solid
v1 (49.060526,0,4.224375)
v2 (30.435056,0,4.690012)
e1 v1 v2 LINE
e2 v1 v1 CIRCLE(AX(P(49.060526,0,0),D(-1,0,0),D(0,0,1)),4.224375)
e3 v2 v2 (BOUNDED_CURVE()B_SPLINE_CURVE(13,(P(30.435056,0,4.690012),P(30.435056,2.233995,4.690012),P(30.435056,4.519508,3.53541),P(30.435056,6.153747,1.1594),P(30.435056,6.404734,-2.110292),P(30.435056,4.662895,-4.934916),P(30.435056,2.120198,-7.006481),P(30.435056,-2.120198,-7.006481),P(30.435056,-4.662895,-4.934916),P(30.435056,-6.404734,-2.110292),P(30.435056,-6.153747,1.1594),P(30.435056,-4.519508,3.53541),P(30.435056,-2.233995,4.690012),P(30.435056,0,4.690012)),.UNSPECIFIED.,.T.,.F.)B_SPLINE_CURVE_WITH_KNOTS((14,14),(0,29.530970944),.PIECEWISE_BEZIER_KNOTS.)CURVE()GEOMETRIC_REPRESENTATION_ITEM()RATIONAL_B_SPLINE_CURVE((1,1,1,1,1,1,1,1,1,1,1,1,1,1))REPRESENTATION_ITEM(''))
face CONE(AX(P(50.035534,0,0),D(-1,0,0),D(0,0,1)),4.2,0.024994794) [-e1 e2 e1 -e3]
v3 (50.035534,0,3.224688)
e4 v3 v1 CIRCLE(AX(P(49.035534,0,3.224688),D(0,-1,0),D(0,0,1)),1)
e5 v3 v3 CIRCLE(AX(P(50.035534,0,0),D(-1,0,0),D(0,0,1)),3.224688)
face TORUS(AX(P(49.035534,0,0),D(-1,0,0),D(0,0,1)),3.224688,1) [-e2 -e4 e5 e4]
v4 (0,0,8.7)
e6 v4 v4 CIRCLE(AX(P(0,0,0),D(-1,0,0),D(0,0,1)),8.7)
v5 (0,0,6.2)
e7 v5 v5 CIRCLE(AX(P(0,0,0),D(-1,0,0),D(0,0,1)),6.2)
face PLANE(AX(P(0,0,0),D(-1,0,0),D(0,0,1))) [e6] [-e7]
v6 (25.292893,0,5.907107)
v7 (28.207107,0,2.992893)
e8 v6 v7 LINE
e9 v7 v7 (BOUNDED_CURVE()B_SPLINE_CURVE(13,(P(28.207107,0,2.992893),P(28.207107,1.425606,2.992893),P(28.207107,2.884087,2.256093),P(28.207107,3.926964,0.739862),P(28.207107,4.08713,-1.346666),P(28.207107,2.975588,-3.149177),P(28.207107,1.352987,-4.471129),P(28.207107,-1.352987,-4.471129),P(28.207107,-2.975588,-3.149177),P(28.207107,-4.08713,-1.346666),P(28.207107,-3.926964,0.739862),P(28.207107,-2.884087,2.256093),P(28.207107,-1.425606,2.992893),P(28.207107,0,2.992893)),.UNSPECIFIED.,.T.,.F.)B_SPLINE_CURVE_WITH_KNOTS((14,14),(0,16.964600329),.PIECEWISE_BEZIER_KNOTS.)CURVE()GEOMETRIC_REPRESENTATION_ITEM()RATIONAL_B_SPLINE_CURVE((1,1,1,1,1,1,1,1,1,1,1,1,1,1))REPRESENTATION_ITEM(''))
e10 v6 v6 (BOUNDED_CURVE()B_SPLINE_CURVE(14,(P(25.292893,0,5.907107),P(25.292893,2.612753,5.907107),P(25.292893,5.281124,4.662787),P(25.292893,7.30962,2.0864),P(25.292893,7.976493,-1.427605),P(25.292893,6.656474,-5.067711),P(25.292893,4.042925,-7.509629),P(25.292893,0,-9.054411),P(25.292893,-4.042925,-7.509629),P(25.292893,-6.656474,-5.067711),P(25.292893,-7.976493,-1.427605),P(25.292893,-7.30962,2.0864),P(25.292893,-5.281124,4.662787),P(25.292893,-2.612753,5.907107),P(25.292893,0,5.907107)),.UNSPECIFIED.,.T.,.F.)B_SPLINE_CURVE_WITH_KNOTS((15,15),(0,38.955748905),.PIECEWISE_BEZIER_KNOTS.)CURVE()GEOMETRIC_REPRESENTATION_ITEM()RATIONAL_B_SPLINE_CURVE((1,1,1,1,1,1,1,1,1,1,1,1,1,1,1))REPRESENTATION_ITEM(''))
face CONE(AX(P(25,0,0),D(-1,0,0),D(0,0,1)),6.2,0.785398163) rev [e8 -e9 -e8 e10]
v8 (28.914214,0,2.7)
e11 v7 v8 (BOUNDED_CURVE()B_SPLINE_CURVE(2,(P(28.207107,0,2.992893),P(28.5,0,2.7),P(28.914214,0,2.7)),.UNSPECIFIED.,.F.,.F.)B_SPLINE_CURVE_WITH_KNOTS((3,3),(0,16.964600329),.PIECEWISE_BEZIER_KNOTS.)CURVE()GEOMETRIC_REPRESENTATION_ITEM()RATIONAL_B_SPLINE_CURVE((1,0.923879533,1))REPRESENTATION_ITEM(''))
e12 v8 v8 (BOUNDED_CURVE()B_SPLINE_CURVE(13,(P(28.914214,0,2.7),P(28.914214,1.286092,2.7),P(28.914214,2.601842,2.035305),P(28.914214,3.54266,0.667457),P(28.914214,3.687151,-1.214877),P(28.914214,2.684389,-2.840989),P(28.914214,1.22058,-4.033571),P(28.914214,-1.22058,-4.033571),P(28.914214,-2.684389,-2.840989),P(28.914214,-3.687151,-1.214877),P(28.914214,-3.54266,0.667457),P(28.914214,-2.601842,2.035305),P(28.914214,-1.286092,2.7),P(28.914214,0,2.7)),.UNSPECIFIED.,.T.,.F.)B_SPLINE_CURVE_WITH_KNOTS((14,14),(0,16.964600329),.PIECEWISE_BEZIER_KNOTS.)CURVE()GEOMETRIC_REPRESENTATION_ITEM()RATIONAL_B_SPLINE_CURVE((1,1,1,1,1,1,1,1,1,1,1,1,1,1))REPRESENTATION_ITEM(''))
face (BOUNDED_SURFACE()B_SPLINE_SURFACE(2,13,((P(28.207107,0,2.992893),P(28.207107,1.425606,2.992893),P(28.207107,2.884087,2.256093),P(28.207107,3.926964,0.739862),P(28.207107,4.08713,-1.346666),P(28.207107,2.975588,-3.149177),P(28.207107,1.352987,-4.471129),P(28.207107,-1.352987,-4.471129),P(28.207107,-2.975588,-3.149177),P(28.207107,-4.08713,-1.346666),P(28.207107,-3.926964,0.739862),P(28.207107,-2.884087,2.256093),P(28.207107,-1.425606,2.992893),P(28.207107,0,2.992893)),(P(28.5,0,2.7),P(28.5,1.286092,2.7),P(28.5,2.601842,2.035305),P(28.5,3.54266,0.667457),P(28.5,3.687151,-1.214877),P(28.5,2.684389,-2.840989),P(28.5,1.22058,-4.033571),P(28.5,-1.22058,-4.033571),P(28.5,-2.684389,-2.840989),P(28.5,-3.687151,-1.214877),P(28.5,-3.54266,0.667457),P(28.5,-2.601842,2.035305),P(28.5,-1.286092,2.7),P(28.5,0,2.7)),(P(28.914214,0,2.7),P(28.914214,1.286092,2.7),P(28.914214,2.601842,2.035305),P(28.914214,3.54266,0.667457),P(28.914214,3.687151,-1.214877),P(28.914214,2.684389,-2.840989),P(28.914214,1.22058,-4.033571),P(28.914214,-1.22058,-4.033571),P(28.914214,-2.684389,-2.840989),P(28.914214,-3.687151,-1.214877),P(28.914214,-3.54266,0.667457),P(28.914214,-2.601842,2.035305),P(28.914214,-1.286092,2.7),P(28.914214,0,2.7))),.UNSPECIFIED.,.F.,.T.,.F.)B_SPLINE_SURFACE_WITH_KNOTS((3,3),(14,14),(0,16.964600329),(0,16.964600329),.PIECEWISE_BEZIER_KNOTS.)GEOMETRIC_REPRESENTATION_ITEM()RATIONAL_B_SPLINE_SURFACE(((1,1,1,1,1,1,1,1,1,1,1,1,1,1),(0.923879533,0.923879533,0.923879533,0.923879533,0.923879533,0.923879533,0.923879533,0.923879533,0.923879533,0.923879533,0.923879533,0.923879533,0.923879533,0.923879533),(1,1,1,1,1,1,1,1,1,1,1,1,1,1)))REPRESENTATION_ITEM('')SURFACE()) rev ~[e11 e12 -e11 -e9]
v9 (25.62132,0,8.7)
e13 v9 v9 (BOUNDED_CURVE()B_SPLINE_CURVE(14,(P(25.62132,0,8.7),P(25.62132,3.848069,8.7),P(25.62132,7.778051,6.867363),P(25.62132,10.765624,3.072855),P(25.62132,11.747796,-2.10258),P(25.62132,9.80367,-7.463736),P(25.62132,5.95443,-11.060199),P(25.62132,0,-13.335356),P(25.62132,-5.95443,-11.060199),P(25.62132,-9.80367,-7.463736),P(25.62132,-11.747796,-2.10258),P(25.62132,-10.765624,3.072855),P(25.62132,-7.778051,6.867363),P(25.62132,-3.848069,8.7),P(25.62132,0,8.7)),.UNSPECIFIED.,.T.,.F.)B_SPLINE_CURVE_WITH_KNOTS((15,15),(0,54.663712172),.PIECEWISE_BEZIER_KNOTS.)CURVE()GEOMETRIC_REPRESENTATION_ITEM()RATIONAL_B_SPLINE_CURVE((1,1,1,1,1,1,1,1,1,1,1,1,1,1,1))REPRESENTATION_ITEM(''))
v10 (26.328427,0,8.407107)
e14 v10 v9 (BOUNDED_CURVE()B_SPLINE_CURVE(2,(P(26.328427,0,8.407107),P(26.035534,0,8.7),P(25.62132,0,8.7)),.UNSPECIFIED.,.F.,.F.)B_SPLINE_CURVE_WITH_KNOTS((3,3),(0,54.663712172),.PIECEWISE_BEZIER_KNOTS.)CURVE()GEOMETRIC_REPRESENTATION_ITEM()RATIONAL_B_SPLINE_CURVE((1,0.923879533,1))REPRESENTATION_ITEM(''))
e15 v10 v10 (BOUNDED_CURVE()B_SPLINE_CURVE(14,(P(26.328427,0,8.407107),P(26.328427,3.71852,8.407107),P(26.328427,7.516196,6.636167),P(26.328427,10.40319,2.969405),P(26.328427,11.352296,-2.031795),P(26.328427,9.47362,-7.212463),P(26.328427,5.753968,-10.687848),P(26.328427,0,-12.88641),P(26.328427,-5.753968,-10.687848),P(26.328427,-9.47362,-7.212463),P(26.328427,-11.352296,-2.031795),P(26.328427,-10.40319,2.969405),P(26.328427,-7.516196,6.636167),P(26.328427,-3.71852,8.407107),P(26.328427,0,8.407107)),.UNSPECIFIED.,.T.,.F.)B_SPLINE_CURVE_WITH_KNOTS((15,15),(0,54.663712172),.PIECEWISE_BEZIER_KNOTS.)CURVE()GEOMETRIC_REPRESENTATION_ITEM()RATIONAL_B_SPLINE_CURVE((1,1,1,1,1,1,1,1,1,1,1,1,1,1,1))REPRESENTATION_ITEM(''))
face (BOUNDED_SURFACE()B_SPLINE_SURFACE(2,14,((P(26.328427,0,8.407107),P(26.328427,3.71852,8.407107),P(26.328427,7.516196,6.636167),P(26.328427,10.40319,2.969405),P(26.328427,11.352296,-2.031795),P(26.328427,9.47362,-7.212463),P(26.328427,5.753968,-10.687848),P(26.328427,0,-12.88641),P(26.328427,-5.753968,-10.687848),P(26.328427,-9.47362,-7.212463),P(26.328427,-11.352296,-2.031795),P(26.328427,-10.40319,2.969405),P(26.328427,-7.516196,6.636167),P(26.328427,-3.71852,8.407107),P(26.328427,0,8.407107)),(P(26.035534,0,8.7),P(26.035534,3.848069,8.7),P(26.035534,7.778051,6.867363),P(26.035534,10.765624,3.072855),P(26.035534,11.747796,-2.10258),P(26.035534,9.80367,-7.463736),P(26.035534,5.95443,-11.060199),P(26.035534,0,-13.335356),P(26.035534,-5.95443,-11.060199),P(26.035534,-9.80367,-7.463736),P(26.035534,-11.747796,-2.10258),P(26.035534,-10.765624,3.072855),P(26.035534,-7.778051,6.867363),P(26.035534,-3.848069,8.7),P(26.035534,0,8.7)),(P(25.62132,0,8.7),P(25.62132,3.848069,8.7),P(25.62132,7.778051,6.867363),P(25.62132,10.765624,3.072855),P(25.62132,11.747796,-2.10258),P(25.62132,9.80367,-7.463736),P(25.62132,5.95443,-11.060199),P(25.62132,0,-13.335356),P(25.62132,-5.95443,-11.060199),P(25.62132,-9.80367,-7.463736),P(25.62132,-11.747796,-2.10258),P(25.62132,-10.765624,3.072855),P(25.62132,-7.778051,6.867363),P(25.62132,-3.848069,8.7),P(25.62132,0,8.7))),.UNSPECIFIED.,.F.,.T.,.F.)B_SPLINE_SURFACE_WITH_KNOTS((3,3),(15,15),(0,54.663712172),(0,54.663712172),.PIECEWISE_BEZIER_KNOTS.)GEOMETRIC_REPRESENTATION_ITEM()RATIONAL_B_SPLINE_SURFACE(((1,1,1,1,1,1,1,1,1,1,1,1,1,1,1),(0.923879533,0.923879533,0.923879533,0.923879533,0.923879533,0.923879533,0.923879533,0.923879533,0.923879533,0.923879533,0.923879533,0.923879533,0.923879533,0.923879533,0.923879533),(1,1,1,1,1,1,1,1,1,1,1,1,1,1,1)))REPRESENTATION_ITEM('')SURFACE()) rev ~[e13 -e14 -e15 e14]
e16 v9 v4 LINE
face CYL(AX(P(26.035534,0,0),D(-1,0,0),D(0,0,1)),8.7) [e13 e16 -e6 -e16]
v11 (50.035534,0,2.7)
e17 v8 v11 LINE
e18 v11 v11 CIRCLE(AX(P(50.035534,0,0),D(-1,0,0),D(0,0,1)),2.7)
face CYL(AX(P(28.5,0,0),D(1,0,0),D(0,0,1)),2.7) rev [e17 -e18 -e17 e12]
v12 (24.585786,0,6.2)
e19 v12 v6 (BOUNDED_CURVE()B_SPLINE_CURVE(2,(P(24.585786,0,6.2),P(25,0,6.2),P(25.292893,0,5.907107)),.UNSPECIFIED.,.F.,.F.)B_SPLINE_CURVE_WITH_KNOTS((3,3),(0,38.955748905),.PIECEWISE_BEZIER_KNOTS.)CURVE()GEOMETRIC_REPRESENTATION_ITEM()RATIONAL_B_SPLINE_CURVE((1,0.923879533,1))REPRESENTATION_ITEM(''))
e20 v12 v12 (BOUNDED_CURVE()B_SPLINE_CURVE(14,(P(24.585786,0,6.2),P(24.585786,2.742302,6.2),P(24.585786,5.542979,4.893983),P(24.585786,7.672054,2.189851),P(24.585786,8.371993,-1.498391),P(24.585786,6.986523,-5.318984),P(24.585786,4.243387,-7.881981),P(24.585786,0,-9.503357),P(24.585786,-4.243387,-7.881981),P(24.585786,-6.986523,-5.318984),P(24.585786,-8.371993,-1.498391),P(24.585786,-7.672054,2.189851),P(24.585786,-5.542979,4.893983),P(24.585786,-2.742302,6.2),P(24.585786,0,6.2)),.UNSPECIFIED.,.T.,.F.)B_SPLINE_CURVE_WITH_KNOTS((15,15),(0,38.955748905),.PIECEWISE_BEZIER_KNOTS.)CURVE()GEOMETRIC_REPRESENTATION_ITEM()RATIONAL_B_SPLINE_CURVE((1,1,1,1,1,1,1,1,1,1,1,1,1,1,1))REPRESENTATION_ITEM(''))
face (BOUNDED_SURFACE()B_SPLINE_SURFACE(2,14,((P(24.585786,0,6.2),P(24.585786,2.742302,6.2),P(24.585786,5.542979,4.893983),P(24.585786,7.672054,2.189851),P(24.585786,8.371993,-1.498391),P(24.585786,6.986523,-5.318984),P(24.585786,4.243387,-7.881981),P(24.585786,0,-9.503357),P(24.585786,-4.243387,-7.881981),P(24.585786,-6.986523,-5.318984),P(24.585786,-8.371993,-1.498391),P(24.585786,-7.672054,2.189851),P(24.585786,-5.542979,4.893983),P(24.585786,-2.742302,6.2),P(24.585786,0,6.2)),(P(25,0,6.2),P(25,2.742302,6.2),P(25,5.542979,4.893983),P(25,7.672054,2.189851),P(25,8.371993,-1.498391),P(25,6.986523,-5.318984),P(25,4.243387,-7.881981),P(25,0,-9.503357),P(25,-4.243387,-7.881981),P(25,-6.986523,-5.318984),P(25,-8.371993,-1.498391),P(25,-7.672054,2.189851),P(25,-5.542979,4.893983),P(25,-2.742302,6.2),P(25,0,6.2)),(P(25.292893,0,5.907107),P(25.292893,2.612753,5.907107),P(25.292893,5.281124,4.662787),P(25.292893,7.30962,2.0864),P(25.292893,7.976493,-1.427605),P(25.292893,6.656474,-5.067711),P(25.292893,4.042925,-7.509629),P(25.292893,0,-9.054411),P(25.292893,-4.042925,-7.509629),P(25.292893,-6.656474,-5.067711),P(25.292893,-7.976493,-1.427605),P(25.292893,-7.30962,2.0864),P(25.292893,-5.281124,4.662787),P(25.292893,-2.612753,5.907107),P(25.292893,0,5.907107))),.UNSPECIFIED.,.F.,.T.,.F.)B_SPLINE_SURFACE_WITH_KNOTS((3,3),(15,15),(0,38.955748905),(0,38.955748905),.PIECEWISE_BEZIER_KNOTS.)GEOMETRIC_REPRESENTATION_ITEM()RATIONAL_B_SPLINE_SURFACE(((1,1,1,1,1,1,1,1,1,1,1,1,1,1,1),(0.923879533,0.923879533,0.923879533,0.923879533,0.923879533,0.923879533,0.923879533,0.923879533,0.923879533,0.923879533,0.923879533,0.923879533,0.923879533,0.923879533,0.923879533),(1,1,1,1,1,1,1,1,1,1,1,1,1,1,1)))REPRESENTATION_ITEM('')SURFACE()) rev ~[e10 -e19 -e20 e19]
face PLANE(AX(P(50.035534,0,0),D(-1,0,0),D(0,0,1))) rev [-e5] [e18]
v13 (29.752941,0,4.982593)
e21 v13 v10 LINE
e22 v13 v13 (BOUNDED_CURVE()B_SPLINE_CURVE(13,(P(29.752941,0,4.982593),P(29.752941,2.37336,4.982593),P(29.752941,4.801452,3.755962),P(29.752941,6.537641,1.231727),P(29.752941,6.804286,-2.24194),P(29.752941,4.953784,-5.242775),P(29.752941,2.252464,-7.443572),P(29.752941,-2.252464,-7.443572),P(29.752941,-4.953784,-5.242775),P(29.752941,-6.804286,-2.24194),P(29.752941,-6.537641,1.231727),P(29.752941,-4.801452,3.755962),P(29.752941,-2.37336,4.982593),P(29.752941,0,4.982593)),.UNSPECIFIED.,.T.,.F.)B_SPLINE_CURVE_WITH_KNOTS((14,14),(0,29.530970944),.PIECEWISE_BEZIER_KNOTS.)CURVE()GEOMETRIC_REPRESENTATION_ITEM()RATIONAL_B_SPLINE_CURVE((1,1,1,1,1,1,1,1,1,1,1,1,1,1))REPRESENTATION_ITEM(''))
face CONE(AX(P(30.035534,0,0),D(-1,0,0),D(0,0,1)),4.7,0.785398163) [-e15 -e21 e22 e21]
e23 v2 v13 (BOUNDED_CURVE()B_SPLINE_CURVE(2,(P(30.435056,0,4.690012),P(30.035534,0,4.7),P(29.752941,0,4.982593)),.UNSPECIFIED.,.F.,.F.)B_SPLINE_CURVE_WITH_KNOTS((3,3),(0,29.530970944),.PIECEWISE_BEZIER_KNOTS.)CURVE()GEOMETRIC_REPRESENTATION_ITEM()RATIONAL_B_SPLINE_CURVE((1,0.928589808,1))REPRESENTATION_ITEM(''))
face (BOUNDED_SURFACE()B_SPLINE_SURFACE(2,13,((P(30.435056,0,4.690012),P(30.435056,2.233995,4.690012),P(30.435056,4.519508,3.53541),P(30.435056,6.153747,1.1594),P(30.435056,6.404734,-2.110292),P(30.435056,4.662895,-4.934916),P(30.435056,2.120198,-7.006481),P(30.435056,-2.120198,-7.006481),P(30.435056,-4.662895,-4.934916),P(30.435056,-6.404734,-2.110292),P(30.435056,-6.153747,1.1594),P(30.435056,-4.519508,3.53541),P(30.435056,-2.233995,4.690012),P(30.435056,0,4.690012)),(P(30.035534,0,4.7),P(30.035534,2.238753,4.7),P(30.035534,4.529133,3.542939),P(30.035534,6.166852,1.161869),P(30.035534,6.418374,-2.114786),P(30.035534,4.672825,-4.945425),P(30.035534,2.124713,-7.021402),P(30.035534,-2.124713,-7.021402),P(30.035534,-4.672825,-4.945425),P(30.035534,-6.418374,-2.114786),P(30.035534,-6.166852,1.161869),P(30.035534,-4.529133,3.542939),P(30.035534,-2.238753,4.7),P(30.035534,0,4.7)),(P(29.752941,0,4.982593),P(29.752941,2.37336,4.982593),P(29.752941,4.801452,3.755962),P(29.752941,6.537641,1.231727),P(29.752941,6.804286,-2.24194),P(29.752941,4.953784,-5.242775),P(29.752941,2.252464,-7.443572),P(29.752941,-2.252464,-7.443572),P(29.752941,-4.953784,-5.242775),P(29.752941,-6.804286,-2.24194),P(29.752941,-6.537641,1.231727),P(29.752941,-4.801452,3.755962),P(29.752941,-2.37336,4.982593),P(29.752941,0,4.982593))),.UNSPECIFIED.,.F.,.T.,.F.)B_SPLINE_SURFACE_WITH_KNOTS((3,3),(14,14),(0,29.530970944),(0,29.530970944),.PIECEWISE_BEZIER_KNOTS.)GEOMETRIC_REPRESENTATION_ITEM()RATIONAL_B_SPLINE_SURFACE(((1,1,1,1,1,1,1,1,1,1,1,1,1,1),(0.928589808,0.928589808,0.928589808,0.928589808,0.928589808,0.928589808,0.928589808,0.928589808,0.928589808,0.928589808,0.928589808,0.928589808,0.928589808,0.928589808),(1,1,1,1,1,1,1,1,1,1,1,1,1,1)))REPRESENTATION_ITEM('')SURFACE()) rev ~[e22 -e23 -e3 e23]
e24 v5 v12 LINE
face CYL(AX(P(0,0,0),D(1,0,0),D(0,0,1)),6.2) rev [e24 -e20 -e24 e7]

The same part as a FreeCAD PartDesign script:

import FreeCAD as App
import Part
import Sketcher
Q = App.Units.Quantity


def edges_at(feature, points):
    """Names of the edges that pass closest to the given points."""
    edges = feature.Shape.Edges
    near = lambda p: min(range(len(edges)), key=lambda i: edges[i].distToShape(Part.Vertex(*p))[0])
    return sorted({f"Edge{near(p) + 1}" for p in points})

doc = App.newDocument("Part")
body = doc.addObject("PartDesign::Body", "Body")

sketch1 = body.newObject("Sketcher::SketchObject", "Sketch")
sketch1.AttachmentSupport = (doc.getObject("XZ_Plane"), [""])
sketch1.MapMode = "FlatFace"
sketch1.addGeometry([
    Part.LineSegment(App.Vector(0, 8.7, 0), App.Vector(0, 6.2, 0)),
    Part.LineSegment(App.Vector(0, 6.2, 0), App.Vector(25, 6.2, 0)),
    Part.LineSegment(App.Vector(25, 6.2, 0), App.Vector(28.5, 2.7, 0)),
    Part.LineSegment(App.Vector(28.5, 2.7, 0), App.Vector(50, 2.7, 0)),
    Part.LineSegment(App.Vector(50, 2.7, 0), App.Vector(50, 4.2, 0)),
    Part.LineSegment(App.Vector(50, 4.2, 0), App.Vector(30, 4.7, 0)),
    Part.LineSegment(App.Vector(30, 4.7, 0), App.Vector(26, 8.7, 0)),
    Part.LineSegment(App.Vector(26, 8.7, 0), App.Vector(0, 8.7, 0)),
], False)
sketch1.addConstraint([
    Sketcher.Constraint("Coincident", 0, 2, 1, 1),
    Sketcher.Constraint("Coincident", 1, 2, 2, 1),
    Sketcher.Constraint("Coincident", 2, 2, 3, 1),
    Sketcher.Constraint("Coincident", 3, 2, 4, 1),
    Sketcher.Constraint("Coincident", 4, 2, 5, 1),
    Sketcher.Constraint("Coincident", 5, 2, 6, 1),
    Sketcher.Constraint("Coincident", 6, 2, 7, 1),
    Sketcher.Constraint("Coincident", 7, 2, 0, 1),
    Sketcher.Constraint("Vertical", 0),
    Sketcher.Constraint("Horizontal", 1),
    Sketcher.Constraint("Horizontal", 3),
    Sketcher.Constraint("Vertical", 4),
    Sketcher.Constraint("Horizontal", 7),
    Sketcher.Constraint("PointOnObject", 0, 2, -2),
    Sketcher.Constraint("Parallel", 2, 6),
    Sketcher.Constraint("DistanceX", 1, 1, 1, 2, Q("25 mm")),
    Sketcher.Constraint("Angle", 2, Q("-45 deg")),
    Sketcher.Constraint("DistanceY", 0, 2, 0, 1, Q("2.5 mm")),
    Sketcher.Constraint("DistanceY", 4, 1, 4, 2, Q("1.5 mm")),
    Sketcher.Constraint("DistanceY", 4, 2, 1, 2, Q("2 mm")),
    Sketcher.Constraint("DistanceY", 2, 2, 5, 2, Q("2 mm")),
    Sketcher.Constraint("DistanceX", 5, 2, 4, 2, Q("20 mm")),
    Sketcher.Constraint("DistanceY", -1, 1, 0, 2, Q("6.2 mm")),
    Sketcher.Constraint("DistanceX", 3, 1, 3, 2, Q("21.535534 mm")),
])
revolution = body.newObject("PartDesign::Revolution", "Revolution")
revolution.Profile = sketch1
revolution.ReferenceAxis = (sketch1, ["H_Axis"])
revolution.Angle = 360
doc.recompute()

fillet = body.newObject("PartDesign::Fillet", "Fillet")
fillet.Base = (revolution, edges_at(revolution, [
    (26.036, 0, -8.7),
    (30.036, 0, -4.7),
    (50.036, 0, -4.2),
    (25, 0, -6.2),
    (28.5, 0, -2.7),
]))
fillet.Radius = 1

doc.recompute()
